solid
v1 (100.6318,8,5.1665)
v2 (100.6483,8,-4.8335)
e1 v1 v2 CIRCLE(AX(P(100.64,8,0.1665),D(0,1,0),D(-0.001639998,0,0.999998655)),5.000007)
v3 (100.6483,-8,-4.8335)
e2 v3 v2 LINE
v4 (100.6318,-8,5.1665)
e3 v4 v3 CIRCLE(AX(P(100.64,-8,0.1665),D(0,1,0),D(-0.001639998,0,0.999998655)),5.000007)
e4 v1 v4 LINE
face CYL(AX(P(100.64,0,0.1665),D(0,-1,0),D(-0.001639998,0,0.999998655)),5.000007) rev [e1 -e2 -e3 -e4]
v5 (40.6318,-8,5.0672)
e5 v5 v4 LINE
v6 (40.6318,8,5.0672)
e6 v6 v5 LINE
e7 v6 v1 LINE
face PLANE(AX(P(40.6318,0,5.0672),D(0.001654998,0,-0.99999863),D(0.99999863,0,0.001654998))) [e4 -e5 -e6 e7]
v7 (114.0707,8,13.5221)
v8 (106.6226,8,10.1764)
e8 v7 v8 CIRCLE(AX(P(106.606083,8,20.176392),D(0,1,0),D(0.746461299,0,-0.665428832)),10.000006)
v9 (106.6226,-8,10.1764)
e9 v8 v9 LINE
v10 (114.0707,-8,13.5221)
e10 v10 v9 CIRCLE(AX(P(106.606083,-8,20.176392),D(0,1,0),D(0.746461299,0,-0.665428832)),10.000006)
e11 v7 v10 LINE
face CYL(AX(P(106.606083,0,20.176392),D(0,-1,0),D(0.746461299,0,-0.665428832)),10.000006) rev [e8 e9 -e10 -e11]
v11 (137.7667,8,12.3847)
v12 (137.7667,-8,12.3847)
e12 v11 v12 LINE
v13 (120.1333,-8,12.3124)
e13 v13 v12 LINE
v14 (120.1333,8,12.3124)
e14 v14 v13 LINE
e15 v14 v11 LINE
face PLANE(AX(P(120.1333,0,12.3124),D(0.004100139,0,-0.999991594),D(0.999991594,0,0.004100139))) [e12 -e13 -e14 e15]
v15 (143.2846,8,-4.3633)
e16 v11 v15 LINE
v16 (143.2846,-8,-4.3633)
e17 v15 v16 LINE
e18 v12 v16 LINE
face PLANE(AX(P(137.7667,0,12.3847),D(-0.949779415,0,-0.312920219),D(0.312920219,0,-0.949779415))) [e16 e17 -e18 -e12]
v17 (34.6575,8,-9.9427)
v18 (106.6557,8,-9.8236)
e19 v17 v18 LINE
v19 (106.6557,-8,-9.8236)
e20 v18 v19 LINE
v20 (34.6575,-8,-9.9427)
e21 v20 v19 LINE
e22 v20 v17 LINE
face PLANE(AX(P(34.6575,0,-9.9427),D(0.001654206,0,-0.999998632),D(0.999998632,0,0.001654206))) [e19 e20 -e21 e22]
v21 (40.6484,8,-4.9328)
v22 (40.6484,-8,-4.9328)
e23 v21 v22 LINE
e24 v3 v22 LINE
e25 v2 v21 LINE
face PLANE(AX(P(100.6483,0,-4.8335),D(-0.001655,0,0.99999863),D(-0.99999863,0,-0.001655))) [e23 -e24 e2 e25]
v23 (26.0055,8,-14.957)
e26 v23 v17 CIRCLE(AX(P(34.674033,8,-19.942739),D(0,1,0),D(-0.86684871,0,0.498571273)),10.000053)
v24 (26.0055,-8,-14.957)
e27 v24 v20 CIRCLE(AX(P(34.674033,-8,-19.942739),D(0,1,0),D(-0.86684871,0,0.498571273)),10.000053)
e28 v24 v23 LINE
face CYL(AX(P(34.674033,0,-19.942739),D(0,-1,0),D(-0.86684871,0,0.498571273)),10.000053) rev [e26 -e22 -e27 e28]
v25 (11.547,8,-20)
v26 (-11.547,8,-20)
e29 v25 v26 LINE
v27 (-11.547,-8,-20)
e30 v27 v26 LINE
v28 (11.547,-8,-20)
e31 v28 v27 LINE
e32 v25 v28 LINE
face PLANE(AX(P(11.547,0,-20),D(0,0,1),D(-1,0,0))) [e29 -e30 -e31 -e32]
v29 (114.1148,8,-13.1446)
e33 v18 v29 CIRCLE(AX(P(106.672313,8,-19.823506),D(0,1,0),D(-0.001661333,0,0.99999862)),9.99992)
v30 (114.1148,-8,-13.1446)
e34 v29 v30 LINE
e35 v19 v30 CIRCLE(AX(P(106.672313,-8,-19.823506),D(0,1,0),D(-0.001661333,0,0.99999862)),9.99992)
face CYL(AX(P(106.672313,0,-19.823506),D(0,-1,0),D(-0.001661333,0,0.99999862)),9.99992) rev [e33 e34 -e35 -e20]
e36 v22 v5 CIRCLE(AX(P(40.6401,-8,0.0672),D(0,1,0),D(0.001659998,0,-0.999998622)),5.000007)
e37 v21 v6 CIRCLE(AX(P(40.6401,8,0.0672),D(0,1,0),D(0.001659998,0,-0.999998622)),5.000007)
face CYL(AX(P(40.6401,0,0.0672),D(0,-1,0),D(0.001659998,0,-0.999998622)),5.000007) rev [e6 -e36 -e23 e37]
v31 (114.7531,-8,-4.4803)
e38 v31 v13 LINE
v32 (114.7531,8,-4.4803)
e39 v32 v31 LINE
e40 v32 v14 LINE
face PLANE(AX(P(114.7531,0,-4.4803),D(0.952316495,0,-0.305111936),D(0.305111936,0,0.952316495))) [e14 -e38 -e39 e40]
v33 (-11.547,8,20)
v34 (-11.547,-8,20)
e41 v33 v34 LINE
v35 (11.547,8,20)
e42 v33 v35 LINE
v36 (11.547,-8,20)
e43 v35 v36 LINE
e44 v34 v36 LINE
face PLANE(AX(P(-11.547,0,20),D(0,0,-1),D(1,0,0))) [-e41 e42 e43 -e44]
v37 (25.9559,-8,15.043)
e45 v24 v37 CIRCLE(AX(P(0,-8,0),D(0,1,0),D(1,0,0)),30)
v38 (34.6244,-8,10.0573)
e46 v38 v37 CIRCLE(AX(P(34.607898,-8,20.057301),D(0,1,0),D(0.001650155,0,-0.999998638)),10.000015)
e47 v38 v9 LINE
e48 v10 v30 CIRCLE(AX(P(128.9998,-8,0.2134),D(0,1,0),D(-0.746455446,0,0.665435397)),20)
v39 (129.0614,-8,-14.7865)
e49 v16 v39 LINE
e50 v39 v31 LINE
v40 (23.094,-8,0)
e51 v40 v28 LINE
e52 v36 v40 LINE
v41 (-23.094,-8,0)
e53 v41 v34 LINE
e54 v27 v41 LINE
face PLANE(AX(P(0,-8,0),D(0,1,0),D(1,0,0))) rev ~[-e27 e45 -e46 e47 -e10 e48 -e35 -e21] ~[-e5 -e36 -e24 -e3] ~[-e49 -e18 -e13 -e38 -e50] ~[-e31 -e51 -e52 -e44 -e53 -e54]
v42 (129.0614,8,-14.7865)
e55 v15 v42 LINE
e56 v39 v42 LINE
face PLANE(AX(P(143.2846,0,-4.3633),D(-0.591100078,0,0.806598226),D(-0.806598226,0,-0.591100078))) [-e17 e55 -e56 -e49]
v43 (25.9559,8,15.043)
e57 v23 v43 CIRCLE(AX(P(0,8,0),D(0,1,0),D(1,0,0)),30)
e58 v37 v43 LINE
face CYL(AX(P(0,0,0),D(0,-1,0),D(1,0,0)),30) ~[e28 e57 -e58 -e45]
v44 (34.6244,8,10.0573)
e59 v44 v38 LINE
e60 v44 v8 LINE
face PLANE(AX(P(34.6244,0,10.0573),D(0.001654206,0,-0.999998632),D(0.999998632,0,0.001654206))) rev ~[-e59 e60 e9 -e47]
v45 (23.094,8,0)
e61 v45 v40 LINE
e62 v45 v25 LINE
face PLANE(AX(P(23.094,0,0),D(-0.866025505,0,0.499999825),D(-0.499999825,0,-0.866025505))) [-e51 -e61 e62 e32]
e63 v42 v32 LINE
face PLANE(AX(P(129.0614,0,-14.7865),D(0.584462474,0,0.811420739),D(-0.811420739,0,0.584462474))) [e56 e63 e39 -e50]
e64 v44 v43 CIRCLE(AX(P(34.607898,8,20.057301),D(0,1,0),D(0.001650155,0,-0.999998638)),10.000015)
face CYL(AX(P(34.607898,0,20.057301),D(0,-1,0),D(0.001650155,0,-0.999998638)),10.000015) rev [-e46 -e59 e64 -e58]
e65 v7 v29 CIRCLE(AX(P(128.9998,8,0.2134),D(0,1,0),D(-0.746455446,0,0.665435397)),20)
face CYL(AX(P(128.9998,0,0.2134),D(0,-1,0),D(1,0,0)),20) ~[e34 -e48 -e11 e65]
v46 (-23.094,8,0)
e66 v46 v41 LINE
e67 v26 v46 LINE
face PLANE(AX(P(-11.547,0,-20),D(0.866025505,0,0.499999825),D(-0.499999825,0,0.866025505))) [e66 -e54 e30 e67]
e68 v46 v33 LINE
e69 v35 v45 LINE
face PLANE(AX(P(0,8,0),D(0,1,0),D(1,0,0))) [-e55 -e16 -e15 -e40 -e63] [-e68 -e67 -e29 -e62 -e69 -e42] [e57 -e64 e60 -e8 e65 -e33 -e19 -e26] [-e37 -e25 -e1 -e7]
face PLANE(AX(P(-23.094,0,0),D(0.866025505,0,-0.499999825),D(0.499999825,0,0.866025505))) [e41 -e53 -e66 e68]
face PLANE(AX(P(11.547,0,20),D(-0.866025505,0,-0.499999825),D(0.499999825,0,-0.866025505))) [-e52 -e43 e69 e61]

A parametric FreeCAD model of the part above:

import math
import FreeCAD as App
import Part
import Sketcher
Q = App.Units.Quantity


def add_polygon(sketch, points):
    """Adds a closed chain of lines whose ends are joined by coincident constraints."""
    first, n = sketch.GeometryCount, len(points)
    for a, b in zip(points, points[1:] + points[:1]):
        sketch.addGeometry(Part.LineSegment(App.Vector(*a, 0), App.Vector(*b, 0)), False)
    for i in range(n):
        sketch.addConstraint(Sketcher.Constraint("Coincident", first + i, 2, first + (i + 1) % n, 1))

doc = App.newDocument("Part")
body = doc.addObject("PartDesign::Body", "Body")

sketch1 = doc.addObject("Sketcher::SketchObject", "Sketch")
body.addObject(sketch1)
sketch1.AttachmentSupport = (doc.XZ_Plane, [""])
sketch1.MapMode = "FlatFace"
sketch1.addGeometry(Part.LineSegment(App.Vector(107, -10, 0), App.Vector(35, -10, 0)), False)
sketch1.addGeometry(Part.ArcOfCircle(Part.Circle(App.Vector(35, -20, 0), App.Vector(0, 0, 1), 10), math.radians(90), math.radians(150)), False)
sketch1.addGeometry(Part.ArcOfCircle(Part.Circle(App.Vector(0, 0, 0), App.Vector(0, 0, 1), 30), math.radians(30), math.radians(330)), False)
sketch1.addGeometry(Part.ArcOfCircle(Part.Circle(App.Vector(35, 20, 0), App.Vector(0, 0, 1), 10), math.radians(-150), math.radians(-90)), False)
sketch1.addGeometry(Part.LineSegment(App.Vector(35, 10, 0), App.Vector(107, 10, 0)), False)
sketch1.addGeometry(Part.ArcOfCircle(Part.Circle(App.Vector(107, 20, 0), App.Vector(0, 0, 1), 10), math.radians(-90), math.radians(-42)), False)
sketch1.addGeometry(Part.ArcOfCircle(Part.Circle(App.Vector(129, 0, 0), App.Vector(0, 0, 1), 20), math.radians(-138), math.radians(138)), False)
sketch1.addGeometry(Part.ArcOfCircle(Part.Circle(App.Vector(107, -20, 0), App.Vector(0, 0, 1), 10), math.radians(42), math.radians(90)), False)
sketch1.addGeometry(Part.LineSegment(App.Vector(41, -5, 0), App.Vector(101, -5, 0)), False)
sketch1.addGeometry(Part.ArcOfCircle(Part.Circle(App.Vector(101, 0, 0), App.Vector(0, 0, 1), 5), math.radians(-90), math.radians(90)), False)
sketch1.addGeometry(Part.LineSegment(App.Vector(101, 5, 0), App.Vector(41, 5, 0)), False)
sketch1.addGeometry(Part.ArcOfCircle(Part.Circle(App.Vector(41, 0, 0), App.Vector(0, 0, 1), 5), math.radians(90), math.radians(270)), False)
add_polygon(sketch1, [(129, -15), (143, -4), (138, 12), (120, 12), (115, -4)])
add_polygon(sketch1, [(12, -20), (23, 0), (12, 20), (-12, 20), (-23, 0), (-12, -20)])
sketch1.addConstraint([
    Sketcher.Constraint("Tangent", 0, 2, 1, 1),
    Sketcher.Constraint("Tangent", 1, 2, 2, 2),
    Sketcher.Constraint("Tangent", 2, 1, 3, 1),
    Sketcher.Constraint("Tangent", 3, 2, 4, 1),
    Sketcher.Constraint("Tangent", 4, 2, 5, 1),
    Sketcher.Constraint("Tangent", 5, 2, 6, 2),
    Sketcher.Constraint("Tangent", 6, 1, 7, 1),
    Sketcher.Constraint("Tangent", 7, 2, 0, 1),
    Sketcher.Constraint("Tangent", 8, 2, 9, 1),
    Sketcher.Constraint("Tangent", 9, 2, 10, 1),
    Sketcher.Constraint("Tangent", 10, 2, 11, 1),
    Sketcher.Constraint("Tangent", 11, 2, 8, 1),
    Sketcher.Constraint("Horizontal", 19),
    Sketcher.Constraint("Horizontal", 22),
    Sketcher.Constraint("Coincident", 2, 3, -1, 1),
    Sketcher.Constraint("Equal", 1, 3),
    Sketcher.Constraint("Equal", 3, 5),
    Sketcher.Constraint("Equal", 5, 7),
    Sketcher.Constraint("Equal", 9, 11),
    Sketcher.Constraint("Symmetric", 17, 2, 20, 2, -1, 1),
    Sketcher.Constraint("Symmetric", 18, 2, 21, 2, -1, 1),
    Sketcher.Constraint("PointOnObject", 17, 2, -1),
    Sketcher.Constraint("Parallel", 0, 4),
    Sketcher.Constraint("Parallel", 4, 8),
    Sketcher.Constraint("Parallel", 17, 20),
    Sketcher.Constraint("Vertical", 19, 2, 21, 2),
    Sketcher.Constraint("Equal", 0, 4),
    Sketcher.Constraint("Equal", 12, 13),
    Sketcher.Constraint("Equal", 13, 14),
    Sketcher.Constraint("Equal", 14, 15),
    Sketcher.Constraint("Equal", 15, 16),
    Sketcher.Constraint("Radius", 1, Q("10 mm")),
    Sketcher.Constraint("Radius", 2, Q("30 mm")),
    Sketcher.Constraint("Radius", 6, Q("20 mm")),
    Sketcher.Constraint("Radius", 9, Q("5 mm")),
    Sketcher.Constraint("Angle", 17, Q("60 deg")),
    Sketcher.Constraint("Distance", 8, Q("60 mm")),
    Sketcher.Constraint("DistanceY", -1, 1, 18, 2, Q("20 mm")),
    Sketcher.Constraint("DistanceY", 1, 3, 3, 3, Q("40 mm")),
    Sketcher.Constraint("DistanceY", 16, 2, 6, 3, Q("15 mm")),
    Sketcher.Constraint("DistanceX", -1, 1, 6, 3, Q("128.9998 mm")),
    Sketcher.Constraint("DistanceX", 19, 2, 19, 1, Q("23.094 mm")),
    Sketcher.Constraint("DistanceX", -1, 1, 9, 3, Q("100.64 mm")),
    Sketcher.Constraint("DistanceY", 7, 3, 9, 3, Q("19.99 mm")),
    Sketcher.Constraint("DistanceY", 1, 3, 11, 3, Q("20.01 mm")),
    Sketcher.Constraint("DistanceX", 20, 2, 2, 1, Q("49.05 mm")),
    Sketcher.Constraint("DistanceX", -1, 1, 15, 2, Q("114.753 mm")),
    Sketcher.Constraint("DistanceX", 5, 2, 12, 2, Q("29.214 mm")),
    Sketcher.Constraint("DistanceX", 6, 3, 13, 2, Q("8.767 mm")),
    Sketcher.Constraint("DistanceY", 12, 2, 13, 2, Q("16.748 mm")),
    Sketcher.Constraint("DistanceY", 4, 2, 14, 2, Q("2.136 mm")),
])
pad1 = doc.addObject("PartDesign::Pad", "Pad")
body.addObject(pad1)
pad1.Profile = sketch1
pad1.Type = "TwoLengths"
pad1.Length = 8
pad1.Length2 = 8
pad1.Reversed = True

doc.recompute()
